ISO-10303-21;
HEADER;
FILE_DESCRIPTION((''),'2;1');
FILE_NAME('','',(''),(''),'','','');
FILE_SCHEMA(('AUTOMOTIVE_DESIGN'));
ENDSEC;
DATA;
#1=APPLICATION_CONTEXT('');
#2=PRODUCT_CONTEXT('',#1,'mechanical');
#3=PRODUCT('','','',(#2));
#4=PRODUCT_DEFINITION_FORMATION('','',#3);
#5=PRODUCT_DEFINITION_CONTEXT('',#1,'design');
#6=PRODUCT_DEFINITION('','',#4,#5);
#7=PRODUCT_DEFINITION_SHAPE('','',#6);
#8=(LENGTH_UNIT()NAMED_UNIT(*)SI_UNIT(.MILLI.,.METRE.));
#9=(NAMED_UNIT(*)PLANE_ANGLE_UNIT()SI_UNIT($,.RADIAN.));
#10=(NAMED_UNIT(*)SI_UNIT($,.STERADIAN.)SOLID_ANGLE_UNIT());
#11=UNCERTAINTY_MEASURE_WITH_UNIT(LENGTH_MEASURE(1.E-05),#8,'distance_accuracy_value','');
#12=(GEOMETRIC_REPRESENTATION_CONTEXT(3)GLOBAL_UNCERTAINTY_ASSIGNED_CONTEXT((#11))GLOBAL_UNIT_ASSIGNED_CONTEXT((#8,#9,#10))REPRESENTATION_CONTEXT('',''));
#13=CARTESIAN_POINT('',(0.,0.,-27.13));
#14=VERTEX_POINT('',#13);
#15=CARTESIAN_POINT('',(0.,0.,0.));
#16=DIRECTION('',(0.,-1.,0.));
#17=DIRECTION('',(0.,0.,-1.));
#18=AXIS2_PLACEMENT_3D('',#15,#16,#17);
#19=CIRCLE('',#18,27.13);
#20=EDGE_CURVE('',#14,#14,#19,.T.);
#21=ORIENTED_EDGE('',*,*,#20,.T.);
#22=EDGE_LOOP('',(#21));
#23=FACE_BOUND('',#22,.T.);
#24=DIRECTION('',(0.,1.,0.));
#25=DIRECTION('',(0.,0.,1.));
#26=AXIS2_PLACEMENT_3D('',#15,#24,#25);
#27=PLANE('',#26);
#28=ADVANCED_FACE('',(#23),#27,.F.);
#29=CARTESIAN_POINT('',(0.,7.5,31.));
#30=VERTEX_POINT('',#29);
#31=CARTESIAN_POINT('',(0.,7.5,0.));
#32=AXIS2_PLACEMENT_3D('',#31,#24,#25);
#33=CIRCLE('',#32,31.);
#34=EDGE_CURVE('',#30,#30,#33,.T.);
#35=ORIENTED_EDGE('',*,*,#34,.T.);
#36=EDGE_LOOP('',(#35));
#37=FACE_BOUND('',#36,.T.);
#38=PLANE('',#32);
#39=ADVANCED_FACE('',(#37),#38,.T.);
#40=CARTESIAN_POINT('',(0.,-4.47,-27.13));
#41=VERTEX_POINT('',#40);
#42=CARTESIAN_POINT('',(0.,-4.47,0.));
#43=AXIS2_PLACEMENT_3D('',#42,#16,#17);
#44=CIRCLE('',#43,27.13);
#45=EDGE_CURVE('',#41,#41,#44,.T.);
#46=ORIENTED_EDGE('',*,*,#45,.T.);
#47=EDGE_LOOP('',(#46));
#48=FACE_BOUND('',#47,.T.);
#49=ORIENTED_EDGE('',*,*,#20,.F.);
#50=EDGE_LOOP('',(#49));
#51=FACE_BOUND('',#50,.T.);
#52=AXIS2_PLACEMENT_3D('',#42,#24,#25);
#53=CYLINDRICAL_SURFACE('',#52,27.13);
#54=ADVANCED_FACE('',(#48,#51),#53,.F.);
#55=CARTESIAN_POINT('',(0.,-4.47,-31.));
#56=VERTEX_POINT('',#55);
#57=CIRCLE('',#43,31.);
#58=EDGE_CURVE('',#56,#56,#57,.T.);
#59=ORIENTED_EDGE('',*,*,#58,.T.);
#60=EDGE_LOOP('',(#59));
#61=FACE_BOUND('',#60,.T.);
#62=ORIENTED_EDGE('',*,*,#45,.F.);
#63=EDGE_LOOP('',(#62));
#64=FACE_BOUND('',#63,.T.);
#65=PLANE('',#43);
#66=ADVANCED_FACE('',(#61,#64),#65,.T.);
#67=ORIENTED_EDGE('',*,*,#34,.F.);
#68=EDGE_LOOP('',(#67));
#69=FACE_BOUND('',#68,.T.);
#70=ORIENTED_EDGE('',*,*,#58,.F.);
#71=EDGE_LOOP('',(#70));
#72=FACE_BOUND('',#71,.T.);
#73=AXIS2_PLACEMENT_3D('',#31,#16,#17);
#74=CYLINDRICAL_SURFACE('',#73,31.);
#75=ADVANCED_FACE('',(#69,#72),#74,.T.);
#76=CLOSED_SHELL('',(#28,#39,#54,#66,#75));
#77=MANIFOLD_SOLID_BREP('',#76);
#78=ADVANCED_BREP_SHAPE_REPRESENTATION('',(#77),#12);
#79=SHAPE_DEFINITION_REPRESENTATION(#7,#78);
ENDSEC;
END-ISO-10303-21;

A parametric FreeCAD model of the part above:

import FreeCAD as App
import Part
import Sketcher
from FreeCAD import Vector
Q = App.Units.Quantity

doc = App.newDocument("Part")
body = doc.addObject("PartDesign::Body", "Body")

sketch1 = body.newObject("Sketcher::SketchObject", "Sketch")
sketch1.AttachmentSupport = (doc.getObject("XZ_Plane"), [""])
sketch1.MapMode = "FlatFace"
sketch1.addGeometry(Part.Circle(Vector(0, 0, 0), Vector(0, 0, 1), 31), False)
sketch1.addConstraint([
    Sketcher.Constraint("Coincident", 0, 3, -1, 1),
    Sketcher.Constraint("Diameter", 0, Q("62 mm")),
])
pad1 = body.newObject("PartDesign::Pad", "Pad")
pad1.Profile = sketch1
pad1.Length = 7.5
pad1.Reversed = True

sketch2 = body.newObject("Sketcher::SketchObject", "Sketch001")
sketch2.AttachmentSupport = (doc.getObject("XZ_Plane"), [""])
sketch2.MapMode = "FlatFace"
sketch2.AttachmentOffset = App.Placement(Vector(0, 0, 4.47), App.Rotation())
sketch2.addGeometry([
    Part.Circle(Vector(0, 0, 0), Vector(0, 0, 1), 31),
    Part.Circle(Vector(0, 0, 0), Vector(0, 0, 1), 27),
], False)
sketch2.addConstraint([
    Sketcher.Constraint("Coincident", 0, 3, -1, 1),
    Sketcher.Constraint("Coincident", 1, 3, -1, 1),
    Sketcher.Constraint("Diameter", 0, Q("62 mm")),
    Sketcher.Constraint("Diameter", 1, Q("54.26 mm")),
])
pad2 = body.newObject("PartDesign::Pad", "Pad001")
pad2.Profile = sketch2
pad2.Length = 4.47
pad2.Reversed = True

doc.recompute()
